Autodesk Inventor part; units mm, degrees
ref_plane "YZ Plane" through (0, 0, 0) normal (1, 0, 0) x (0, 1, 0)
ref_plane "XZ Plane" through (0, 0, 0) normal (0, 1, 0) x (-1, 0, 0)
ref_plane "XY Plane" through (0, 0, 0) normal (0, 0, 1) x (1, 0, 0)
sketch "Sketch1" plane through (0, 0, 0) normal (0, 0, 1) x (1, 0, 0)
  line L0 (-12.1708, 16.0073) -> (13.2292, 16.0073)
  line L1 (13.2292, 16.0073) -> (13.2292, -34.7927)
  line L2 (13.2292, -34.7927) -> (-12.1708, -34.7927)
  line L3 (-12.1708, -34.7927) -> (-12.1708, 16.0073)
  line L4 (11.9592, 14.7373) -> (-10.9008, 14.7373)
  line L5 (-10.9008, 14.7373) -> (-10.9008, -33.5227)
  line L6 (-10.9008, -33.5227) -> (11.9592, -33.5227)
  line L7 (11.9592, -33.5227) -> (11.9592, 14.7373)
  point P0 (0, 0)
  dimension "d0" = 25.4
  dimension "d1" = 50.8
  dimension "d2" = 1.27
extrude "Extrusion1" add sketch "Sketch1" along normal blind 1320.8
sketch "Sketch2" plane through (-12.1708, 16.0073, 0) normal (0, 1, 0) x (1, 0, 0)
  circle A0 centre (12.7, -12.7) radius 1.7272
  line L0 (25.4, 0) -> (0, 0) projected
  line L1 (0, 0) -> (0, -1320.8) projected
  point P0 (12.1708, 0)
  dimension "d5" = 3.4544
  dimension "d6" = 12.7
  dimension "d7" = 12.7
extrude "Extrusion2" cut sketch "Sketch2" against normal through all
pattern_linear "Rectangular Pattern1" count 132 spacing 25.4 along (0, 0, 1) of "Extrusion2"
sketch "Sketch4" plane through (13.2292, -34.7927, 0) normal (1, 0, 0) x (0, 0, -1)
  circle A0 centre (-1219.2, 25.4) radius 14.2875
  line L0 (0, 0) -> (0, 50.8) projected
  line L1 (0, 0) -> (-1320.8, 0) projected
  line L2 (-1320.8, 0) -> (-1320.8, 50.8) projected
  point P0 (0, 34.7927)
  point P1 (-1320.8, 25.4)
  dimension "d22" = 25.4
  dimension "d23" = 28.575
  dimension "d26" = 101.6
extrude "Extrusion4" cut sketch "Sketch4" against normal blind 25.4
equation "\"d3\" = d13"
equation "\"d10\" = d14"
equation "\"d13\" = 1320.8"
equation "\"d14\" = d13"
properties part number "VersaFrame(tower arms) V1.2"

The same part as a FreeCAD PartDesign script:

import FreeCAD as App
import Part
import Sketcher
Q = App.Units.Quantity


def add_polygon(sketch, points):
    """Adds a closed chain of lines whose ends are joined by coincident constraints."""
    first, n = sketch.GeometryCount, len(points)
    for a, b in zip(points, points[1:] + points[:1]):
        sketch.addGeometry(Part.LineSegment(App.Vector(*a, 0), App.Vector(*b, 0)), False)
    for i in range(n):
        sketch.addConstraint(Sketcher.Constraint("Coincident", first + i, 2, first + (i + 1) % n, 1))

doc = App.newDocument("Part")
body = doc.addObject("PartDesign::Body", "Body")

sketch1 = body.newObject("Sketcher::SketchObject", "Sketch")
sketch1.AttachmentSupport = (doc.getObject("XY_Plane"), [""])
sketch1.MapMode = "FlatFace"
add_polygon(sketch1, [(13, 16), (-12, 16), (-12, -35), (13, -35)])
add_polygon(sketch1, [(-11, 15), (12, 15), (12, -34), (-11, -34)])
sketch1.addConstraint(Sketcher.Constraint("Horizontal", 0))
sketch1.addConstraint(Sketcher.Constraint("Vertical", 1))
sketch1.addConstraint(Sketcher.Constraint("Horizontal", 2))
sketch1.addConstraint(Sketcher.Constraint("Vertical", 3))
sketch1.addConstraint(Sketcher.Constraint("Horizontal", 4))
sketch1.addConstraint(Sketcher.Constraint("Vertical", 5))
sketch1.addConstraint(Sketcher.Constraint("Horizontal", 6))
sketch1.addConstraint(Sketcher.Constraint("Vertical", 7))
sketch1.addConstraint(Sketcher.Constraint("DistanceX", 0, 2, 0, 1, Q("1 in")))
sketch1.addConstraint(Sketcher.Constraint("DistanceY", 1, 2, 1, 1, Q("2 in")))
sketch1.addConstraint(Sketcher.Constraint("DistanceX", 4, 2, 3, 2, Q("0.05 in")))
sketch1.addConstraint(Sketcher.Constraint("DistanceY", 4, 2, 3, 2, Q("0.05 in")))
sketch1.addConstraint(Sketcher.Constraint("DistanceY", 2, 2, 5, 2, Q("0.05 in")))
sketch1.addConstraint(Sketcher.Constraint("DistanceX", 1, 2, 6, 2, Q("0.05 in")))
sketch1.addConstraint(Sketcher.Constraint("DistanceY", -1, 1, 0, 2, Q("0.6302 in")))
sketch1.addConstraint(Sketcher.Constraint("DistanceX", 0, 2, -1, 1, 12.1708))
pad1 = body.newObject("PartDesign::Pad", "Pad")
pad1.Profile = sketch1
pad1.Length = Q("52 in")

sketch2 = body.newObject("Sketcher::SketchObject", "Sketch001")
sketch2.AttachmentSupport = (doc.getObject("XZ_Plane"), [""])
sketch2.MapMode = "FlatFace"
sketch2.AttachmentOffset = App.Placement(App.Vector(0, 0, -0.6302087 * 25.4), App.Rotation())
sketch2.addGeometry(Part.Circle(App.Vector(0.5, 12.7, 0), App.Vector(0, 0, 1), 1.7), False)
sketch2.addConstraint(Sketcher.Constraint("Diameter", 0, Q("0.136 in")))
sketch2.addConstraint(Sketcher.Constraint("DistanceY", -1, 1, 0, 3, Q("0.5 in")))
sketch2.addConstraint(Sketcher.Constraint("DistanceX", -1, 1, 0, 3, 0.5292))
pocket1 = body.newObject("PartDesign::Pocket", "Pocket")
pocket1.Profile = sketch2
pocket1.Type = "ThroughAll"
pocket1.Reversed = True
doc.recompute()

linearpattern = body.newObject("PartDesign::LinearPattern", "LinearPattern")
linearpattern.Originals = [pocket1]
linearpattern.Direction = (doc.getObject("Z_Axis"), [""])
linearpattern.Mode = "offset"
linearpattern.Offset = Q("1 in")
linearpattern.Occurrences = 132
body.Tip = linearpattern

sketch3 = body.newObject("Sketcher::SketchObject", "Sketch002")
sketch3.AttachmentSupport = (doc.getObject("YZ_Plane"), [""])
sketch3.MapMode = "FlatFace"
sketch3.AttachmentOffset = App.Placement(App.Vector(0, 0, 13.2292), App.Rotation())
sketch3.addGeometry(Part.Circle(App.Vector(-9, 1219, 0), App.Vector(0, 0, 1), 14), False)
sketch3.addConstraint(Sketcher.Constraint("Diameter", 0, Q("1.125 in")))
sketch3.addConstraint(Sketcher.Constraint("DistanceY", -1, 1, 0, 3, Q("48 in")))
sketch3.addConstraint(Sketcher.Constraint("DistanceX", 0, 3, -1, 1, Q("0.3698 in")))
pocket2 = body.newObject("PartDesign::Pocket", "Pocket001")
pocket2.Profile = sketch3
pocket2.Length = Q("1 in")

doc.recompute()
